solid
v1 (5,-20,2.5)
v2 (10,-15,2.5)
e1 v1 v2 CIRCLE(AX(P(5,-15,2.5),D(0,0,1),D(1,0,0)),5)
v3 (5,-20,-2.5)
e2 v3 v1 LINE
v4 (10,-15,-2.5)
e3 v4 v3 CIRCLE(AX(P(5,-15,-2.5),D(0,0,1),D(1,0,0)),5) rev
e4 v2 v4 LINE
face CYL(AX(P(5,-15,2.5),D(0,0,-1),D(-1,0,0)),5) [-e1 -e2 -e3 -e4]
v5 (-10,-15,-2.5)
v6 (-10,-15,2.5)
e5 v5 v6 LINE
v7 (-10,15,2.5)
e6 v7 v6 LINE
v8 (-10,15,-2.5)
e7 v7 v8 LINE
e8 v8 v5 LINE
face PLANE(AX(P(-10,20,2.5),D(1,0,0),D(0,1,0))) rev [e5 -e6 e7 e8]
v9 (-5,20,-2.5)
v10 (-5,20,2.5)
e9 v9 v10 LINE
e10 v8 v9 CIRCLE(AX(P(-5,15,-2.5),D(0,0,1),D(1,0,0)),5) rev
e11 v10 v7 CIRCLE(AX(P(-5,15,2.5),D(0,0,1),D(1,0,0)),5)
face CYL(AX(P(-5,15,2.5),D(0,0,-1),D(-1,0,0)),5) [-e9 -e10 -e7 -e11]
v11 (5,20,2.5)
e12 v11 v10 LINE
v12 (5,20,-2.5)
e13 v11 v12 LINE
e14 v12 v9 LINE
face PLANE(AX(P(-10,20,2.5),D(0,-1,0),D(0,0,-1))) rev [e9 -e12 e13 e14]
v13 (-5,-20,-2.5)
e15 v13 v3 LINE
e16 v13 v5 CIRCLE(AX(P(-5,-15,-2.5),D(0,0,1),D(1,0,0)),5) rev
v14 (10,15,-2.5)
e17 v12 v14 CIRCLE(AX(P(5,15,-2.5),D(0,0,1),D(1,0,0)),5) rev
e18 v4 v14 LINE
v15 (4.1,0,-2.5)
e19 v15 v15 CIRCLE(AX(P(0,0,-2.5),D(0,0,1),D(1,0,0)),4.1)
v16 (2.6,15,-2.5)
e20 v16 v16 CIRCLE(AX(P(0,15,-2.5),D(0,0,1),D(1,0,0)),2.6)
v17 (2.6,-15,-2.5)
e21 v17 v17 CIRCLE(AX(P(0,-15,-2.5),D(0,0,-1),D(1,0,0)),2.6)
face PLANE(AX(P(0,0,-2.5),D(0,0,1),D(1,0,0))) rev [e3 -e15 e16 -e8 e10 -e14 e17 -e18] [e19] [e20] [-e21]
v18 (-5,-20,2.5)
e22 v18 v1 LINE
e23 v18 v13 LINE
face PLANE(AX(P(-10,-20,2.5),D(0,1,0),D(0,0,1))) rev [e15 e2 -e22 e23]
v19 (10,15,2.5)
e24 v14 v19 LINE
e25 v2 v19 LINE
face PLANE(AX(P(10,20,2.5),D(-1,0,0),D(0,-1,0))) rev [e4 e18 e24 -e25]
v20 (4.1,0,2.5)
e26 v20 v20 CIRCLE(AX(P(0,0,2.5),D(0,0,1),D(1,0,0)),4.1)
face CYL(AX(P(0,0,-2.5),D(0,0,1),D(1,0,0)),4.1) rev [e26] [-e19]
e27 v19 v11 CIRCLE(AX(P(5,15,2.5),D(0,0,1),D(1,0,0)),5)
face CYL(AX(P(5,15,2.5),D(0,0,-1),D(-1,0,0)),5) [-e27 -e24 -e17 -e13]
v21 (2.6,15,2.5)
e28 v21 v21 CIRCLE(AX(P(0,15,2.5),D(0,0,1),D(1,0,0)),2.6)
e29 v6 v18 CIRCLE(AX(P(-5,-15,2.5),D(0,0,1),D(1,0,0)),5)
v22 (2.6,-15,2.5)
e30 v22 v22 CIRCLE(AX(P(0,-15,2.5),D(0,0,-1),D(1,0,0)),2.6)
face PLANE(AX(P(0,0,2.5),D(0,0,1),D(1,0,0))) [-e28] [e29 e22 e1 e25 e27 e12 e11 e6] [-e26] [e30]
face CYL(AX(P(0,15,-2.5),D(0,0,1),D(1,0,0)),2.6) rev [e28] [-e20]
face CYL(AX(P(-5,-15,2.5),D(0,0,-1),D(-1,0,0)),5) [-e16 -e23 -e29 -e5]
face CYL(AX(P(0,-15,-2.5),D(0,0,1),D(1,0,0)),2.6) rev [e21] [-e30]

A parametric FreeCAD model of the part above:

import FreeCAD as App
import Part
import Sketcher
Q = App.Units.Quantity


def edges_at(feature, points):
    """Names of the edges that pass closest to the given points."""
    edges = feature.Shape.Edges
    near = lambda p: min(range(len(edges)), key=lambda i: edges[i].distToShape(Part.Vertex(*p))[0])
    return sorted({f"Edge{near(p) + 1}" for p in points})

doc = App.newDocument("Part")
body = doc.addObject("PartDesign::Body", "Body")

sketch1 = body.newObject("Sketcher::SketchObject", "Sketch")
sketch1.AttachmentSupport = (doc.getObject("XY_Plane"), [""])
sketch1.MapMode = "FlatFace"
sketch1.addGeometry(Part.LineSegment(App.Vector(-10, 20, 0), App.Vector(-10, -20, 0)), False)
sketch1.addGeometry(Part.LineSegment(App.Vector(-10, -20, 0), App.Vector(10, -20, 0)), False)
sketch1.addGeometry(Part.LineSegment(App.Vector(10, -20, 0), App.Vector(10, 20, 0)), False)
sketch1.addGeometry(Part.LineSegment(App.Vector(10, 20, 0), App.Vector(-10, 20, 0)), False)
sketch1.addConstraint(Sketcher.Constraint("Coincident", 0, 2, 1, 1))
sketch1.addConstraint(Sketcher.Constraint("Coincident", 1, 2, 2, 1))
sketch1.addConstraint(Sketcher.Constraint("Coincident", 2, 2, 3, 1))
sketch1.addConstraint(Sketcher.Constraint("Coincident", 3, 2, 0, 1))
sketch1.addConstraint(Sketcher.Constraint("Vertical", 0))
sketch1.addConstraint(Sketcher.Constraint("Horizontal", 1))
sketch1.addConstraint(Sketcher.Constraint("Vertical", 2))
sketch1.addConstraint(Sketcher.Constraint("Horizontal", 3))
sketch1.addConstraint(Sketcher.Constraint("Symmetric", 0, 2, 2, 2, -1, 1))
sketch1.addConstraint(Sketcher.Constraint("DistanceX", 1, 1, 1, 2, Q("20 mm")))
sketch1.addConstraint(Sketcher.Constraint("DistanceY", 0, 2, 0, 1, Q("40 mm")))
pad1 = body.newObject("PartDesign::Pad", "Pad")
pad1.Profile = sketch1
pad1.Length = 5
pad1.Midplane = True

sketch2 = body.newObject("Sketcher::SketchObject", "Sketch001")
sketch2.AttachmentSupport = (doc.getObject("XY_Plane"), [""])
sketch2.MapMode = "FlatFace"
sketch2.AttachmentOffset = App.Placement(App.Vector(0, 0, 2.5), App.Rotation())
sketch2.addGeometry(Part.Circle(App.Vector(0, 0, 0), App.Vector(0, 0, 1), 4.1), False)
sketch2.addConstraint(Sketcher.Constraint("Coincident", 0, 3, -1, 1))
sketch2.addConstraint(Sketcher.Constraint("Diameter", 0, Q("8.2 mm")))
pocket1 = body.newObject("PartDesign::Pocket", "Pocket")
pocket1.Profile = sketch2
pocket1.Type = "ThroughAll"

sketch3 = body.newObject("Sketcher::SketchObject", "Sketch002")
sketch3.AttachmentSupport = (doc.getObject("XY_Plane"), [""])
sketch3.MapMode = "FlatFace"
sketch3.AttachmentOffset = App.Placement(App.Vector(0, 0, 2.5), App.Rotation())
sketch3.addGeometry(Part.Circle(App.Vector(0, 15, 0), App.Vector(0, 0, 1), 2.6), False)
sketch3.addConstraint(Sketcher.Constraint("PointOnObject", 0, 3, -2))
sketch3.addConstraint(Sketcher.Constraint("Diameter", 0, Q("5.2 mm")))
sketch3.addConstraint(Sketcher.Constraint("DistanceY", -1, 1, 0, 3, Q("15 mm")))
pocket2 = body.newObject("PartDesign::Pocket", "Pocket001")
pocket2.Profile = sketch3
pocket2.Type = "ThroughAll"
doc.recompute()

mirrored = body.newObject("PartDesign::Mirrored", "Mirrored")
mirrored.Originals = [pocket2]
mirrored.MirrorPlane = (doc.getObject("XZ_Plane"), [""])
body.Tip = mirrored
doc.recompute()

fillet = body.newObject("PartDesign::Fillet", "Fillet")
fillet.Base = (mirrored, edges_at(mirrored, [
    (10, -20, 0),
    (-10, -20, 0),
    (-10, 20, 0),
    (10, 20, 0),
]))
fillet.Radius = 5

doc.recompute()
